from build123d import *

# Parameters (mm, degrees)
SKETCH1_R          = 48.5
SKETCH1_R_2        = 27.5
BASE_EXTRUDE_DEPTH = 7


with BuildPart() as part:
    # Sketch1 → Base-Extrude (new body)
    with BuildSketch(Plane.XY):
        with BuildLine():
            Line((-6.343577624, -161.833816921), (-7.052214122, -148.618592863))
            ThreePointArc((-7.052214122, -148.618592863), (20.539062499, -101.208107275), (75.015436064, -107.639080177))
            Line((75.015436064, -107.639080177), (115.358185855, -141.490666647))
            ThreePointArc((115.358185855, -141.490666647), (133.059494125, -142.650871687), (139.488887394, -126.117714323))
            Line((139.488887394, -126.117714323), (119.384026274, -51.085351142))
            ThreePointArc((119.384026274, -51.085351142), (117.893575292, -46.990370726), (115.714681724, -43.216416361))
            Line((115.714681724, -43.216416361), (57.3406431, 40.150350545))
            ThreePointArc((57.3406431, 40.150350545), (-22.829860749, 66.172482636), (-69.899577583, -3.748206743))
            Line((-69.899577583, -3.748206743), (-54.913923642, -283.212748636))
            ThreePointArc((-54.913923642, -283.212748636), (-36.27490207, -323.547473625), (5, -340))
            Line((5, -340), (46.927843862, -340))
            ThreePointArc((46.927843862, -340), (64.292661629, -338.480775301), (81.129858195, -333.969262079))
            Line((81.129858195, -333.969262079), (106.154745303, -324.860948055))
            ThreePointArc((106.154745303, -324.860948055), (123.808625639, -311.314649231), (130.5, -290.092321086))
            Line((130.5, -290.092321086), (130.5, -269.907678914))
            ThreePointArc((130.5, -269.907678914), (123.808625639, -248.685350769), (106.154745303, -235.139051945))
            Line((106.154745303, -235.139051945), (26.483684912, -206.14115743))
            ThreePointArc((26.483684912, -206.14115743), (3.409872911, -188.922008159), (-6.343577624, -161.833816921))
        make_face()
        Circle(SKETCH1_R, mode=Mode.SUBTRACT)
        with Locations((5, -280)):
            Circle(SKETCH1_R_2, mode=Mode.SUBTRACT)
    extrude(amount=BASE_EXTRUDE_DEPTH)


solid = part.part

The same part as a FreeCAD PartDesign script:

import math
import FreeCAD as App
import Part
import Sketcher
Q = App.Units.Quantity

doc = App.newDocument("Part")
body = doc.addObject("PartDesign::Body", "Body")

# Sketch on XY plane
sketch1 = body.newObject("Sketcher::SketchObject", "Sketch")
sketch1.AttachmentSupport = (doc.getObject("XY_Plane"), [""])
sketch1.MapMode = "FlatFace"
sketch1.addGeometry(Part.LineSegment(App.Vector(-6.343578, -161.833817, 0), App.Vector(-7.052214, -148.618593, 0)), False)
sketch1.addGeometry(Part.ArcOfCircle(Part.Circle(App.Vector(42.876056, -145.941302, 0), App.Vector(0, 0, 1), 50), math.radians(50), math.radians(183.069417)), False)
sketch1.addGeometry(Part.LineSegment(App.Vector(75.015436, -107.63908, 0), App.Vector(115.358186, -141.490667, 0)), False)
sketch1.addGeometry(Part.ArcOfCircle(Part.Circle(App.Vector(125, -130, 0), App.Vector(0, 0, 1), 15), math.radians(-130), math.radians(15)), False)
sketch1.addGeometry(Part.LineSegment(App.Vector(139.488887, -126.117714, 0), App.Vector(119.384026, -51.085351, 0)), False)
sketch1.addGeometry(Part.ArcOfCircle(Part.Circle(App.Vector(95.235881, -57.555827, 0), App.Vector(0, 0, 1), 25), math.radians(15), math.radians(35)), False)
sketch1.addGeometry(Part.LineSegment(App.Vector(115.714682, -43.216416, 0), App.Vector(57.340643, 40.150351, 0)), False)
sketch1.addGeometry(Part.ArcOfCircle(Part.Circle(App.Vector(0, 0, 0), App.Vector(0, 0, 1), 70), math.radians(35), math.radians(183.069417)), False)
sketch1.addGeometry(Part.LineSegment(App.Vector(-69.899578, -3.748207, 0), App.Vector(-54.913924, -283.212749, 0)), False)
sketch1.addGeometry(Part.ArcOfCircle(Part.Circle(App.Vector(5, -280, 0), App.Vector(0, 0, 1), 60), math.radians(-176.930583), math.radians(-90)), False)
sketch1.addGeometry(Part.LineSegment(App.Vector(5, -340, 0), App.Vector(46.927844, -340, 0)), False)
sketch1.addGeometry(Part.ArcOfCircle(Part.Circle(App.Vector(46.927844, -240, 0), App.Vector(0, 0, 1), 100), math.radians(-90), math.radians(-70)), False)
sketch1.addGeometry(Part.LineSegment(App.Vector(81.129858, -333.969262, 0), App.Vector(106.154745, -324.860948, 0)), False)
sketch1.addGeometry(Part.ArcOfCircle(Part.Circle(App.Vector(93.5, -290.092321, 0), App.Vector(0, 0, 1), 37), math.radians(-70), math.radians(0)), False)
sketch1.addGeometry(Part.LineSegment(App.Vector(130.5, -290.092321, 0), App.Vector(130.5, -269.907679, 0)), False)
sketch1.addGeometry(Part.ArcOfCircle(Part.Circle(App.Vector(93.5, -269.907679, 0), App.Vector(0, 0, 1), 37), math.radians(0), math.radians(70)), False)
sketch1.addGeometry(Part.LineSegment(App.Vector(106.154745, -235.139052, 0), App.Vector(26.483685, -206.141157, 0)), False)
sketch1.addGeometry(Part.ArcOfCircle(Part.Circle(App.Vector(43.584692, -159.156526, 0), App.Vector(0, 0, 1), 50), math.radians(-176.930583), math.radians(-110)), False)
sketch1.addGeometry(Part.Circle(App.Vector(5, -280, 0), App.Vector(0, 0, 1), 27.5), False)
sketch1.addGeometry(Part.Circle(App.Vector(0, 0, 0), App.Vector(0, 0, 1), 48.5), False)
sketch1.addConstraint(Sketcher.Constraint("Tangent", 0, 2, 1, 2))
sketch1.addConstraint(Sketcher.Constraint("Tangent", 1, 1, 2, 1))
sketch1.addConstraint(Sketcher.Constraint("Tangent", 2, 2, 3, 1))
sketch1.addConstraint(Sketcher.Constraint("Tangent", 3, 2, 4, 1))
sketch1.addConstraint(Sketcher.Constraint("Tangent", 4, 2, 5, 1))
sketch1.addConstraint(Sketcher.Constraint("Tangent", 5, 2, 6, 1))
sketch1.addConstraint(Sketcher.Constraint("Tangent", 6, 2, 7, 1))
sketch1.addConstraint(Sketcher.Constraint("Tangent", 7, 2, 8, 1))
sketch1.addConstraint(Sketcher.Constraint("Tangent", 8, 2, 9, 1))
sketch1.addConstraint(Sketcher.Constraint("Tangent", 9, 2, 10, 1))
sketch1.addConstraint(Sketcher.Constraint("Tangent", 10, 2, 11, 1))
sketch1.addConstraint(Sketcher.Constraint("Tangent", 11, 2, 12, 1))
sketch1.addConstraint(Sketcher.Constraint("Tangent", 12, 2, 13, 1))
sketch1.addConstraint(Sketcher.Constraint("Tangent", 13, 2, 14, 1))
sketch1.addConstraint(Sketcher.Constraint("Tangent", 14, 2, 15, 1))
sketch1.addConstraint(Sketcher.Constraint("Tangent", 15, 2, 16, 1))
sketch1.addConstraint(Sketcher.Constraint("Tangent", 16, 2, 17, 2))
sketch1.addConstraint(Sketcher.Constraint("Tangent", 17, 1, 0, 1))
sketch1.addConstraint(Sketcher.Constraint("Horizontal", 10))
sketch1.addConstraint(Sketcher.Constraint("Vertical", 14))
sketch1.addConstraint(Sketcher.Constraint("Coincident", 7, 3, -1, 1))
sketch1.addConstraint(Sketcher.Constraint("Coincident", 19, 3, -1, 1))
sketch1.addConstraint(Sketcher.Constraint("Coincident", 18, 3, 9, 3))
sketch1.addConstraint(Sketcher.Constraint("Equal", 13, 15))
sketch1.addConstraint(Sketcher.Constraint("Equal", 1, 17))
sketch1.addConstraint(Sketcher.Constraint("Parallel", 0, 8))
sketch1.addConstraint(Sketcher.Constraint("Vertical", 12, 2, 15, 2))
sketch1.addConstraint(Sketcher.Constraint("Diameter", 18, 55.0))
sketch1.addConstraint(Sketcher.Constraint("Diameter", 19, 97.0))
sketch1.addConstraint(Sketcher.Constraint("Radius", 1, 50.0))
sketch1.addConstraint(Sketcher.Constraint("Radius", 3, 15.0))
sketch1.addConstraint(Sketcher.Constraint("Radius", 5, 25.0))
sketch1.addConstraint(Sketcher.Constraint("Radius", 7, 70.0))
sketch1.addConstraint(Sketcher.Constraint("Radius", 9, 60.0))
sketch1.addConstraint(Sketcher.Constraint("Radius", 11, 100.0))
sketch1.addConstraint(Sketcher.Constraint("Radius", 13, 37.0))
sketch1.addConstraint(Sketcher.Constraint("Angle", 2, Q("-40 deg")))
sketch1.addConstraint(Sketcher.Constraint("Angle", 4, Q("105 deg")))
sketch1.addConstraint(Sketcher.Constraint("Angle", 6, Q("125 deg")))
sketch1.addConstraint(Sketcher.Constraint("Angle", 12, Q("20 deg")))
sketch1.addConstraint(Sketcher.Constraint("DistanceX", -1, 1, 3, 3, 125.0))
sketch1.addConstraint(Sketcher.Constraint("DistanceY", 3, 3, -1, 1, 130.0))
sketch1.addConstraint(Sketcher.Constraint("DistanceX", -1, 1, 9, 3, 5.0))
sketch1.addConstraint(Sketcher.Constraint("DistanceY", 9, 3, -1, 1, 280.0))
sketch1.addConstraint(Sketcher.Constraint("DistanceX", -1, 1, 13, 3, 93.5))
sketch1.addConstraint(Sketcher.Constraint("DistanceY", 17, 3, 5, 3, 101.600699))
sketch1.addConstraint(Sketcher.Constraint("DistanceX", 10, 2, 12, 2, 59.226901))
sketch1.addConstraint(Sketcher.Constraint("DistanceX", 0, 2, 16, 2, 33.535899))
pad1 = body.newObject("PartDesign::Pad", "Pad")
pad1.Profile = sketch1
pad1.Length = 7

doc.recompute()
